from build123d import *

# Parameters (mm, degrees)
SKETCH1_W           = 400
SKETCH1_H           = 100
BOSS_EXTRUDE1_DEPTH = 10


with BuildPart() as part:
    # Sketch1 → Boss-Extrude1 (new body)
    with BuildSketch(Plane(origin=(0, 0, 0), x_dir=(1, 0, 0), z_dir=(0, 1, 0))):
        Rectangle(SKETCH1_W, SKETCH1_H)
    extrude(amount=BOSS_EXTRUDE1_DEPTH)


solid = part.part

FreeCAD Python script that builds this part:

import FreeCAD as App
import Part
import Sketcher

V = App.Vector
Q = App.Units.Quantity


def add_polygon(sketch, points):
    """Adds a closed chain of lines whose ends are joined by coincident constraints."""
    first, n = sketch.GeometryCount, len(points)
    for a, b in zip(points, points[1:] + points[:1]):
        sketch.addGeometry(Part.LineSegment(App.Vector(*a, 0), App.Vector(*b, 0)), False)
    for i in range(n):
        sketch.addConstraint(Sketcher.Constraint("Coincident", first + i, 2, first + (i + 1) % n, 1))

doc = App.newDocument("Part")
body = doc.addObject("PartDesign::Body", "Body")

sketch1 = doc.addObject("Sketcher::SketchObject", "Sketch")
body.addObject(sketch1)
sketch1.AttachmentSupport = (doc.XZ_Plane, [""])
sketch1.MapMode = "FlatFace"
add_polygon(sketch1, [(-200, -50), (-200, 50), (200, 50), (200, -50)])
sketch1.addConstraint([
    Sketcher.Constraint("Vertical", 0),
    Sketcher.Constraint("Horizontal", 1),
    Sketcher.Constraint("Vertical", 2),
    Sketcher.Constraint("Horizontal", 3),
    Sketcher.Constraint("Symmetric", 0, 2, 2, 2, -1, 1),
    Sketcher.Constraint("DistanceX", 1, 1, 1, 2, Q("400 mm")),
    Sketcher.Constraint("DistanceY", 0, 1, 0, 2, Q("100 mm")),
])
pad1 = doc.addObject("PartDesign::Pad", "Pad")
body.addObject(pad1)
pad1.Profile = sketch1
pad1.Length = 10
pad1.Reversed = True

doc.recompute()
